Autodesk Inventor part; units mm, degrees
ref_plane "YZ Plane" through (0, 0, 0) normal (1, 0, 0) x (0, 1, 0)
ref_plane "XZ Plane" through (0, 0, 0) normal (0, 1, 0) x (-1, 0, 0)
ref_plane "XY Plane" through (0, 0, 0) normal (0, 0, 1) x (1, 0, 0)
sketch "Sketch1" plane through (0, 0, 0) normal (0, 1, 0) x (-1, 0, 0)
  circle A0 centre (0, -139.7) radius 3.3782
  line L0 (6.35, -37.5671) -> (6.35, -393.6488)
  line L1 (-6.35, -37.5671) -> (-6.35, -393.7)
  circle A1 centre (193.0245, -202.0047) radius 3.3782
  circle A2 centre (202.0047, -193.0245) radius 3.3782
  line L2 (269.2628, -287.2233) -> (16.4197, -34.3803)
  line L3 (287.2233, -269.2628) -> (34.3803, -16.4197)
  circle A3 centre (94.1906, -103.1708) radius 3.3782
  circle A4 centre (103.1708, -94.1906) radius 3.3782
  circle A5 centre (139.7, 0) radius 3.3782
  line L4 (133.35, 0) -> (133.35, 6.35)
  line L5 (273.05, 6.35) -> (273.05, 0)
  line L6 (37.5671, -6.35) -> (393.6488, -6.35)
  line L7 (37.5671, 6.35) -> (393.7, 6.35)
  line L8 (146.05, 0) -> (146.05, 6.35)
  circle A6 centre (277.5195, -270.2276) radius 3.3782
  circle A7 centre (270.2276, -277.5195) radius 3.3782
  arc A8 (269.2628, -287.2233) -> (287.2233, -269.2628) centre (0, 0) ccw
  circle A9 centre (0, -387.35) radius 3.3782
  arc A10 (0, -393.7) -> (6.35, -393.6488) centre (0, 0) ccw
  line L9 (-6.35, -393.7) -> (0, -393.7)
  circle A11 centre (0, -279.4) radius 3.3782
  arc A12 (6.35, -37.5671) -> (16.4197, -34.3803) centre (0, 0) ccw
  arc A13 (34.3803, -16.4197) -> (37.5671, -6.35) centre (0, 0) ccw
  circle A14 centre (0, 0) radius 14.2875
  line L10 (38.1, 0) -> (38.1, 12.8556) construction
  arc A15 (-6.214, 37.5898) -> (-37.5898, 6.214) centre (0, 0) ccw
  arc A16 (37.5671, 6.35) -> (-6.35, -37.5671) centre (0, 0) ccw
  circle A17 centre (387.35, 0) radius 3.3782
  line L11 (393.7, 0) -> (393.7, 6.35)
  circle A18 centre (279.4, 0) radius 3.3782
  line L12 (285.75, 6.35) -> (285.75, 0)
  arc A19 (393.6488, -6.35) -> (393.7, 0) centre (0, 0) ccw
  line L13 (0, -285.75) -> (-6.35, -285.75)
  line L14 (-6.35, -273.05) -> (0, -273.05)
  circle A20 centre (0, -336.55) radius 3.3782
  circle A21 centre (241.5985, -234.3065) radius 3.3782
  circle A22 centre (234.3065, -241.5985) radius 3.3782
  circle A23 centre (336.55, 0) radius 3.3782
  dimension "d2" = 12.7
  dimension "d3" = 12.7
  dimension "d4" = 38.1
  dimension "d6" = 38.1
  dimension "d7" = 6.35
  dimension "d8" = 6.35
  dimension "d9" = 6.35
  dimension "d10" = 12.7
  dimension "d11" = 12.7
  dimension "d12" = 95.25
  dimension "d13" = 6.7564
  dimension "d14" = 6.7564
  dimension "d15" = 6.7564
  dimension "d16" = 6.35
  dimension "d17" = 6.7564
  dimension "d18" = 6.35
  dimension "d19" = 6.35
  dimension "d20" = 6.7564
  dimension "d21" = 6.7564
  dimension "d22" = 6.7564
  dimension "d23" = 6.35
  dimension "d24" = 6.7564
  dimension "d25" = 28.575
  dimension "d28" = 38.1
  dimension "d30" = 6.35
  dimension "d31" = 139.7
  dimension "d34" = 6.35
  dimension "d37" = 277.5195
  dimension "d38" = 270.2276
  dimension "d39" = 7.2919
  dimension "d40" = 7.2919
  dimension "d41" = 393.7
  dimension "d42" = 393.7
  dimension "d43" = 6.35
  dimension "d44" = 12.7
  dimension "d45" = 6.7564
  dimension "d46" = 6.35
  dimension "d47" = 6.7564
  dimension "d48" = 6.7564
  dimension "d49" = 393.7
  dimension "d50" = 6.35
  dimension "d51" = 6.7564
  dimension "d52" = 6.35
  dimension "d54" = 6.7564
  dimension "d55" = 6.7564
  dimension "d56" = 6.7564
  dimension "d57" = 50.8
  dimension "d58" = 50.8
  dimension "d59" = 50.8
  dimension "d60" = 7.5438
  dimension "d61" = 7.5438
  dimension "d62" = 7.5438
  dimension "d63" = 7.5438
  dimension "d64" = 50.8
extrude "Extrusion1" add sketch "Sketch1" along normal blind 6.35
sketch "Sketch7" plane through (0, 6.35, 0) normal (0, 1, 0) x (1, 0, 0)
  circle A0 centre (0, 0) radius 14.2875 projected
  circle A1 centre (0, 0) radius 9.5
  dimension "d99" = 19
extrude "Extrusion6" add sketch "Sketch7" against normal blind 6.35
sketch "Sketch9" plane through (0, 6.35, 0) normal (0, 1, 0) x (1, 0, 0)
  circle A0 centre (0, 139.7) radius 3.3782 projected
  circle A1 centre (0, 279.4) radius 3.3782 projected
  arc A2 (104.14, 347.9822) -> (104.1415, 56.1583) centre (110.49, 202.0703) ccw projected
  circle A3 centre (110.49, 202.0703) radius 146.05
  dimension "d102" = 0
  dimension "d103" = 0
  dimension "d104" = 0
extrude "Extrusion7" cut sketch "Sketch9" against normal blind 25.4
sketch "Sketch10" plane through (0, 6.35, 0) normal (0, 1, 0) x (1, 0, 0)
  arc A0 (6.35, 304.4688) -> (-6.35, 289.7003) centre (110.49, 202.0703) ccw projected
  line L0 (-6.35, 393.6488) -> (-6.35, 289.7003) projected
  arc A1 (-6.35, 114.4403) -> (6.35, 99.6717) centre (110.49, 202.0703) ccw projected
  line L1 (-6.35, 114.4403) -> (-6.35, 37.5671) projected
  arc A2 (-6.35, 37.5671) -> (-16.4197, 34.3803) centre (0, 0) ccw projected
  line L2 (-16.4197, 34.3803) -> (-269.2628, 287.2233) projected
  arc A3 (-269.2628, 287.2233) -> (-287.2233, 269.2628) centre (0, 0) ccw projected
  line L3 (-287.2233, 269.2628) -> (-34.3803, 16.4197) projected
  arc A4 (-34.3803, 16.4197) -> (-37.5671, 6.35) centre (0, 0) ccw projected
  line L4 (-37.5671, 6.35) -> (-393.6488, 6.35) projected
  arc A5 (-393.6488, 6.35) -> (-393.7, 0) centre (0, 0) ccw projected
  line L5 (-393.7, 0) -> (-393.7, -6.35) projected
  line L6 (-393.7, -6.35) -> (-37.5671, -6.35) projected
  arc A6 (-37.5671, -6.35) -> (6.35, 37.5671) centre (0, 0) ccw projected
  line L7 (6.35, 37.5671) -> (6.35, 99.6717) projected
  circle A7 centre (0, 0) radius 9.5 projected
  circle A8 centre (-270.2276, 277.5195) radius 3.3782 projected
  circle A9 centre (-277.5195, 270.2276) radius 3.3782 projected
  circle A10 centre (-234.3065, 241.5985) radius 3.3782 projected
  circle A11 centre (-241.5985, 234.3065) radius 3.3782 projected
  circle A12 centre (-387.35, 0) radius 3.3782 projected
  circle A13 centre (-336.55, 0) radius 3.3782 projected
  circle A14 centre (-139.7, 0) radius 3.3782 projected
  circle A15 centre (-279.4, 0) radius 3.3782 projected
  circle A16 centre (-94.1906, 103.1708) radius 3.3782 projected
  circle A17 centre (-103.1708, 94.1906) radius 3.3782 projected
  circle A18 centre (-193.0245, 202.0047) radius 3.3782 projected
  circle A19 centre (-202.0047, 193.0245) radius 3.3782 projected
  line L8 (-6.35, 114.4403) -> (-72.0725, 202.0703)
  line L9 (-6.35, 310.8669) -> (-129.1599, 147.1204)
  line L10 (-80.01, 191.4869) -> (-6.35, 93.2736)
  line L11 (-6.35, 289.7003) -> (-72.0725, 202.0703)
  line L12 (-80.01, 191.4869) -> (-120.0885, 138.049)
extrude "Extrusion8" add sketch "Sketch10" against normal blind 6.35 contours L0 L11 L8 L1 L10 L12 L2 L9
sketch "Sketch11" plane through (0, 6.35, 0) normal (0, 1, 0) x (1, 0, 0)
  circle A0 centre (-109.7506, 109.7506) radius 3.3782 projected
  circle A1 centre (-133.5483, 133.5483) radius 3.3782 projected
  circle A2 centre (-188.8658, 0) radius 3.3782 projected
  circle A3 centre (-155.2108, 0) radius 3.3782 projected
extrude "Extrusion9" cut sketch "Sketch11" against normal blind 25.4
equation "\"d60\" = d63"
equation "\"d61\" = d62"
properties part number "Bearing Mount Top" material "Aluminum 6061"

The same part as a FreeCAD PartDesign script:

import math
import FreeCAD as App
import Part
import Sketcher
Q = App.Units.Quantity

doc = App.newDocument("Part")
body = doc.addObject("PartDesign::Body", "Body")
body.AllowCompound = True

sketch1 = doc.addObject("Sketcher::SketchObject", "Sketch")
body.addObject(sketch1)
sketch1.AttachmentSupport = (doc.XZ_Plane, [""])
sketch1.MapMode = "FlatFace"
sketch1.addGeometry(Part.LineSegment(App.Vector(-6.35, -393.6488, 0), App.Vector(-6.35, -37.5671, 0)), False)
sketch1.addGeometry(Part.ArcOfCircle(Part.Circle(App.Vector(0.000332, 0.001374, 0), App.Vector(0, 0, 1), 38.101403), math.radians(-115.528251), math.radians(-99.594218)), False)
sketch1.addGeometry(Part.LineSegment(App.Vector(-16.4197, -34.3803, 0), App.Vector(-269.2628, -287.2233, 0)), False)
sketch1.addGeometry(Part.ArcOfCircle(Part.Circle(App.Vector(0, 0, 0), App.Vector(0, 0, 1), 393.699987), math.radians(-136.84857), math.radians(-133.15143)), False)
sketch1.addGeometry(Part.LineSegment(App.Vector(-287.2233, -269.2628, 0), App.Vector(-34.3803, -16.4197, 0)), False)
sketch1.addGeometry(Part.ArcOfCircle(Part.Circle(App.Vector(-0.001314, -0.000519, 0), App.Vector(0, 0, 1), 38.098611), math.radians(-170.40637), math.radians(-154.471161)), False)
sketch1.addGeometry(Part.LineSegment(App.Vector(-37.5671, -6.35, 0), App.Vector(-393.6488, -6.35, 0)), False)
sketch1.addGeometry(Part.ArcOfCircle(Part.Circle(App.Vector(-0.19986, -0.002418, 0), App.Vector(0, 0, 1), 393.50014), math.radians(179.999648), math.radians(180.924283)), False)
sketch1.addGeometry(Part.LineSegment(App.Vector(-393.7, 0, 0), App.Vector(-393.7, 6.35, 0)), False)
sketch1.addGeometry(Part.LineSegment(App.Vector(-393.7, 6.35, 0), App.Vector(-37.5671, 6.35, 0)), False)
sketch1.addGeometry(Part.ArcOfCircle(Part.Circle(App.Vector(0, 0, 0), App.Vector(0, 0, 1), 38.099993), math.radians(-80.40593), math.radians(170.40593)), False)
sketch1.addGeometry(Part.LineSegment(App.Vector(6.35, -37.5671, 0), App.Vector(6.35, -393.7, 0)), False)
sketch1.addGeometry(Part.LineSegment(App.Vector(6.35, -393.7, 0), App.Vector(0, -393.7, 0)), False)
sketch1.addGeometry(Part.ArcOfCircle(Part.Circle(App.Vector(0.000807, 0.200076, 0), App.Vector(0, 0, 1), 393.900076), math.radians(-90.923813), math.radians(-90.000117)), False)
sketch1.addGeometry(Part.Circle(App.Vector(0, -387.35, 0), App.Vector(0, 0, 1), 3.3782), False)
sketch1.addGeometry(Part.Circle(App.Vector(0, -336.55, 0), App.Vector(0, 0, 1), 3.3782), False)
sketch1.addGeometry(Part.Circle(App.Vector(0, -279.4, 0), App.Vector(0, 0, 1), 3.3782), False)
sketch1.addGeometry(Part.Circle(App.Vector(-270.2276, -277.5195, 0), App.Vector(0, 0, 1), 3.3782), False)
sketch1.addGeometry(Part.Circle(App.Vector(-277.5195, -270.2276, 0), App.Vector(0, 0, 1), 3.3782), False)
sketch1.addGeometry(Part.Circle(App.Vector(-234.3065, -241.5985, 0), App.Vector(0, 0, 1), 3.3782), False)
sketch1.addGeometry(Part.Circle(App.Vector(-241.5985, -234.3065, 0), App.Vector(0, 0, 1), 3.3782), False)
sketch1.addGeometry(Part.Circle(App.Vector(-193.0245, -202.0047, 0), App.Vector(0, 0, 1), 3.3782), False)
sketch1.addGeometry(Part.Circle(App.Vector(-202.0047, -193.0245, 0), App.Vector(0, 0, 1), 3.3782), False)
sketch1.addGeometry(Part.Circle(App.Vector(0, -139.7, 0), App.Vector(0, 0, 1), 3.3782), False)
sketch1.addGeometry(Part.Circle(App.Vector(-94.1906, -103.1708, 0), App.Vector(0, 0, 1), 3.3782), False)
sketch1.addGeometry(Part.Circle(App.Vector(-103.1708, -94.1906, 0), App.Vector(0, 0, 1), 3.3782), False)
sketch1.addGeometry(Part.Circle(App.Vector(0, 0, 0), App.Vector(0, 0, 1), 14.2875), False)
sketch1.addGeometry(Part.Circle(App.Vector(-139.7, 0, 0), App.Vector(0, 0, 1), 3.3782), False)
sketch1.addGeometry(Part.Circle(App.Vector(-279.4, 0, 0), App.Vector(0, 0, 1), 3.3782), False)
sketch1.addGeometry(Part.Circle(App.Vector(-336.55, 0, 0), App.Vector(0, 0, 1), 3.3782), False)
sketch1.addGeometry(Part.Circle(App.Vector(-387.35, 0, 0), App.Vector(0, 0, 1), 3.3782), False)
sketch1.addConstraint(Sketcher.Constraint("Coincident", 0, 2, 1, 2))
sketch1.addConstraint(Sketcher.Constraint("Coincident", 1, 1, 2, 1))
sketch1.addConstraint(Sketcher.Constraint("Coincident", 2, 2, 3, 2))
sketch1.addConstraint(Sketcher.Constraint("Coincident", 3, 1, 4, 1))
sketch1.addConstraint(Sketcher.Constraint("Coincident", 4, 2, 5, 2))
sketch1.addConstraint(Sketcher.Constraint("Coincident", 5, 1, 6, 1))
sketch1.addConstraint(Sketcher.Constraint("Coincident", 6, 2, 7, 2))
sketch1.addConstraint(Sketcher.Constraint("Coincident", 7, 1, 8, 1))
sketch1.addConstraint(Sketcher.Constraint("Coincident", 8, 2, 9, 1))
sketch1.addConstraint(Sketcher.Constraint("Coincident", 9, 2, 10, 2))
sketch1.addConstraint(Sketcher.Constraint("Coincident", 10, 1, 11, 1))
sketch1.addConstraint(Sketcher.Constraint("Coincident", 11, 2, 12, 1))
sketch1.addConstraint(Sketcher.Constraint("Coincident", 12, 2, 13, 2))
sketch1.addConstraint(Sketcher.Constraint("Coincident", 13, 1, 0, 1))
sketch1.addConstraint(Sketcher.Constraint("Vertical", 0))
sketch1.addConstraint(Sketcher.Constraint("Horizontal", 6))
sketch1.addConstraint(Sketcher.Constraint("Vertical", 8))
sketch1.addConstraint(Sketcher.Constraint("Horizontal", 9))
sketch1.addConstraint(Sketcher.Constraint("Vertical", 11))
sketch1.addConstraint(Sketcher.Constraint("Horizontal", 12))
sketch1.addConstraint(Sketcher.Constraint("Coincident", 3, 3, -1, 1))
sketch1.addConstraint(Sketcher.Constraint("Coincident", 10, 3, -1, 1))
sketch1.addConstraint(Sketcher.Constraint("Coincident", 26, 3, -1, 1))
sketch1.addConstraint(Sketcher.Constraint("PointOnObject", 14, 3, -2))
sketch1.addConstraint(Sketcher.Constraint("PointOnObject", 15, 3, -2))
sketch1.addConstraint(Sketcher.Constraint("PointOnObject", 16, 3, -2))
sketch1.addConstraint(Sketcher.Constraint("PointOnObject", 23, 3, -2))
sketch1.addConstraint(Sketcher.Constraint("PointOnObject", 27, 3, -1))
sketch1.addConstraint(Sketcher.Constraint("PointOnObject", 28, 3, -1))
sketch1.addConstraint(Sketcher.Constraint("PointOnObject", 29, 3, -1))
sketch1.addConstraint(Sketcher.Constraint("PointOnObject", 30, 3, -1))
sketch1.addConstraint(Sketcher.Constraint("PointOnObject", 7, 1, -1))
sketch1.addConstraint(Sketcher.Constraint("PointOnObject", 12, 2, -2))
sketch1.addConstraint(Sketcher.Constraint("Radius", 3, Q("15.5 in")))
sketch1.addConstraint(Sketcher.Constraint("Radius", 10, Q("1.5 in")))
sketch1.addConstraint(Sketcher.Constraint("Diameter", 14, Q("0.266 in")))
sketch1.addConstraint(Sketcher.Constraint("Diameter", 15, Q("0.266 in")))
sketch1.addConstraint(Sketcher.Constraint("Diameter", 16, Q("0.266 in")))
sketch1.addConstraint(Sketcher.Constraint("Diameter", 17, Q("0.266 in")))
sketch1.addConstraint(Sketcher.Constraint("Diameter", 18, Q("0.266 in")))
sketch1.addConstraint(Sketcher.Constraint("Diameter", 19, Q("0.266 in")))
sketch1.addConstraint(Sketcher.Constraint("Diameter", 20, Q("0.266 in")))
sketch1.addConstraint(Sketcher.Constraint("Diameter", 21, Q("0.266 in")))
sketch1.addConstraint(Sketcher.Constraint("Diameter", 22, Q("0.266 in")))
sketch1.addConstraint(Sketcher.Constraint("Diameter", 23, Q("0.266 in")))
sketch1.addConstraint(Sketcher.Constraint("Diameter", 24, Q("0.266 in")))
sketch1.addConstraint(Sketcher.Constraint("Diameter", 25, Q("0.266 in")))
sketch1.addConstraint(Sketcher.Constraint("Diameter", 26, Q("1.125 in")))
sketch1.addConstraint(Sketcher.Constraint("Diameter", 27, Q("0.266 in")))
sketch1.addConstraint(Sketcher.Constraint("Diameter", 28, Q("0.266 in")))
sketch1.addConstraint(Sketcher.Constraint("Diameter", 29, Q("0.266 in")))
sketch1.addConstraint(Sketcher.Constraint("Diameter", 30, Q("0.266 in")))
sketch1.addConstraint(Sketcher.Constraint("DistanceY", 14, 3, 15, 3, Q("2 in")))
sketch1.addConstraint(Sketcher.Constraint("DistanceX", 30, 3, 29, 3, Q("2 in")))
sketch1.addConstraint(Sketcher.Constraint("DistanceX", 12, 2, 12, 1, Q("0.25 in")))
sketch1.addConstraint(Sketcher.Constraint("DistanceY", 8, 1, 8, 2, Q("0.25 in")))
sketch1.addConstraint(Sketcher.Constraint("DistanceY", 23, 3, -1, 1, Q("5.5 in")))
sketch1.addConstraint(Sketcher.Constraint("DistanceX", 27, 3, -1, 1, Q("5.5 in")))
sketch1.addConstraint(Sketcher.Constraint("DistanceX", 7, 1, -1, 1, Q("15.5 in")))
sketch1.addConstraint(Sketcher.Constraint("DistanceY", 11, 2, -1, 1, Q("15.5 in")))
sketch1.addConstraint(Sketcher.Constraint("DistanceY", 16, 3, 23, 3, Q("5.5 in")))
sketch1.addConstraint(Sketcher.Constraint("DistanceX", 28, 3, 27, 3, Q("5.5 in")))
sketch1.addConstraint(Sketcher.Constraint("DistanceY", 6, 2, 8, 2, Q("0.5 in")))
sketch1.addConstraint(Sketcher.Constraint("DistanceX", 0, 2, 10, 1, Q("0.5 in")))
sketch1.addConstraint(Sketcher.Constraint("DistanceX", 7, 1, 30, 3, Q("0.25 in")))
sketch1.addConstraint(Sketcher.Constraint("DistanceY", 11, 2, 14, 3, Q("0.25 in")))
sketch1.addConstraint(Sketcher.Constraint("DistanceX", 17, 3, -1, 1, Q("270.2276 mm")))
sketch1.addConstraint(Sketcher.Constraint("DistanceY", 17, 3, -1, 1, Q("277.5195 mm")))
sketch1.addConstraint(Sketcher.Constraint("DistanceX", 18, 3, -1, 1, Q("277.5195 mm")))
sketch1.addConstraint(Sketcher.Constraint("DistanceY", 18, 3, -1, 1, Q("270.2276 mm")))
sketch1.addConstraint(Sketcher.Constraint("Radius", 1, Q("38.1014 mm")))
sketch1.addConstraint(Sketcher.Constraint("Radius", 5, Q("38.0986 mm")))
sketch1.addConstraint(Sketcher.Constraint("Radius", 7, Q("393.5001 mm")))
sketch1.addConstraint(Sketcher.Constraint("Radius", 13, Q("393.9 mm")))
sketch1.addConstraint(Sketcher.Constraint("DistanceY", 17, 3, 5, 3, Q("277.519 mm")))
sketch1.addConstraint(Sketcher.Constraint("DistanceX", 20, 3, 19, 3, Q("7.292 mm")))
sketch1.addConstraint(Sketcher.Constraint("DistanceY", 19, 3, 20, 3, Q("7.292 mm")))
sketch1.addConstraint(Sketcher.Constraint("DistanceY", 2, 2, -1, 1, Q("11.308 in")))
sketch1.addConstraint(Sketcher.Constraint("DistanceX", 3, 1, -1, 1, Q("11.308 in")))
sketch1.addConstraint(Sketcher.Constraint("DistanceY", 0, 2, 5, 3, Q("1.479 in")))
sketch1.addConstraint(Sketcher.Constraint("DistanceX", 6, 2, 6, 1, Q("356.0817 mm")))
sketch1.addConstraint(Sketcher.Constraint("DistanceY", 0, 1, 0, 2, Q("356.0817 mm")))
sketch1.addConstraint(Sketcher.Constraint("DistanceY", 7, 3, -1, 1, Q("0.0001 in")))
sketch1.addConstraint(Sketcher.Constraint("DistanceX", 21, 3, -1, 1, Q("7.5994 in")))
sketch1.addConstraint(Sketcher.Constraint("DistanceY", 22, 3, -1, 1, Q("7.5994 in")))
sketch1.addConstraint(Sketcher.Constraint("DistanceX", 24, 3, -1, 1, Q("3.7083 in")))
sketch1.addConstraint(Sketcher.Constraint("DistanceY", 25, 3, -1, 1, Q("3.7083 in")))
sketch1.addConstraint(Sketcher.Constraint("DistanceX", 18, 3, 19, 3, Q("1.7013 in")))
sketch1.addConstraint(Sketcher.Constraint("DistanceY", 17, 3, 20, 3, Q("1.7013 in")))
sketch1.addConstraint(Sketcher.Constraint("DistanceY", 19, 3, 21, 3, Q("1.5588 in")))
sketch1.addConstraint(Sketcher.Constraint("DistanceX", 20, 3, 22, 3, Q("1.5588 in")))
sketch1.addConstraint(Sketcher.Constraint("DistanceX", 25, 3, 5, 3, Q("4.0618 in")))
sketch1.addConstraint(Sketcher.Constraint("DistanceX", 1, 1, 5, 3, Q("0.6464 in")))
sketch1.addConstraint(Sketcher.Constraint("DistanceX", 4, 2, 1, 1, Q("0.7071 in")))
sketch1.addConstraint(Sketcher.Constraint("DistanceY", 1, 1, 4, 2, Q("0.7071 in")))
sketch1.addConstraint(Sketcher.Constraint("DistanceY", 24, 3, -1, 1, Q("103.1708 mm")))
pad1 = doc.addObject("PartDesign::Pad", "Pad")
body.addObject(pad1)
pad1.Profile = sketch1
pad1.Length = Q("0.25 in")
pad1.Reversed = True

sketch2 = doc.addObject("Sketcher::SketchObject", "Sketch001")
body.addObject(sketch2)
sketch2.AttachmentSupport = (doc.XZ_Plane, [""])
sketch2.MapMode = "FlatFace"
sketch2.AttachmentOffset = App.Placement(App.Vector(0, 0, -0.25 * 25.4), App.Rotation())
sketch2.addGeometry(Part.Circle(App.Vector(0, 0, 0), App.Vector(0, 0, 1), 14), False)
sketch2.addGeometry(Part.Circle(App.Vector(0, 0, 0), App.Vector(0, 0, 1), 10), False)
sketch2.addConstraint(Sketcher.Constraint("Coincident", 0, 3, -1, 1))
sketch2.addConstraint(Sketcher.Constraint("Coincident", 1, 3, -1, 1))
sketch2.addConstraint(Sketcher.Constraint("Diameter", 1, Q("19 mm")))
sketch2.addConstraint(Sketcher.Constraint("Diameter", 0, Q("1.125 in")))
pad2 = doc.addObject("PartDesign::Pad", "Pad001")
body.addObject(pad2)
pad2.Profile = sketch2
pad2.Length = Q("0.25 in")

sketch3 = doc.addObject("Sketcher::SketchObject", "Sketch002")
body.addObject(sketch3)
sketch3.AttachmentSupport = (doc.XZ_Plane, [""])
sketch3.MapMode = "FlatFace"
sketch3.AttachmentOffset = App.Placement(App.Vector(0, 0, -0.25 * 25.4), App.Rotation())
sketch3.addGeometry(Part.ArcOfCircle(Part.Circle(App.Vector(110.5, -202.1, 0), App.Vector(0, 0, 1), 146.1), math.radians(-92), math.radians(92)), False)
sketch3.addGeometry(Part.ArcOfCircle(Part.Circle(App.Vector(110.5, -202.1, 0), App.Vector(0, 0, 1), 146.1), math.radians(92), math.radians(268)), False)
sketch3.addGeometry(Part.Circle(App.Vector(0, -139.7, 0), App.Vector(0, 0, 1), 3.4), False)
sketch3.addGeometry(Part.Circle(App.Vector(0, -279.4, 0), App.Vector(0, 0, 1), 3.4), False)
sketch3.addConstraint(Sketcher.Constraint("Tangent", 0, 1, 1, 2))
sketch3.addConstraint(Sketcher.Constraint("Coincident", 1, 1, 0, 2))
sketch3.addConstraint(Sketcher.Constraint("Equal", 2, 3))
sketch3.addConstraint(Sketcher.Constraint("PointOnObject", 2, 3, -2))
sketch3.addConstraint(Sketcher.Constraint("PointOnObject", 3, 3, -2))
sketch3.addConstraint(Sketcher.Constraint("Radius", 0, Q("5.75 in")))
sketch3.addConstraint(Sketcher.Constraint("Diameter", 2, Q("0.266 in")))
sketch3.addConstraint(Sketcher.Constraint("DistanceY", 3, 3, -1, 1, Q("11 in")))
sketch3.addConstraint(Sketcher.Constraint("DistanceY", 2, 3, -1, 1, Q("5.5 in")))
sketch3.addConstraint(Sketcher.Constraint("DistanceX", -1, 1, 0, 1, Q("4.1 in")))
sketch3.addConstraint(Sketcher.Constraint("DistanceX", -1, 1, 0, 3, Q("4.35 in")))
sketch3.addConstraint(Sketcher.Constraint("DistanceY", 0, 3, -1, 1, Q("202.0703 mm")))
sketch3.addConstraint(Sketcher.Constraint("DistanceX", -1, 1, 1, 1, Q("104.1415 mm")))
pocket1 = doc.addObject("PartDesign::Pocket", "Pocket")
body.addObject(pocket1)
pocket1.Profile = sketch3
pocket1.Length = Q("1 in")
pocket1.Reversed = True

sketch4 = doc.addObject("Sketcher::SketchObject", "Sketch003")
body.addObject(sketch4)
sketch4.AttachmentSupport = (doc.XZ_Plane, [""])
sketch4.MapMode = "FlatFace"
sketch4.AttachmentOffset = App.Placement(App.Vector(0, 0, -0.25 * 25.4), App.Rotation())
sketch4.addGeometry(Part.LineSegment(App.Vector(-6, -290, 0), App.Vector(-6, -311, 0)), False)
sketch4.addGeometry(Part.LineSegment(App.Vector(-6, -311, 0), App.Vector(-129, -147, 0)), False)
sketch4.addGeometry(Part.LineSegment(App.Vector(-129, -147, 0), App.Vector(-120, -138, 0)), False)
sketch4.addGeometry(Part.LineSegment(App.Vector(-120, -138, 0), App.Vector(-80, -191, 0)), False)
sketch4.addGeometry(Part.LineSegment(App.Vector(-80, -191, 0), App.Vector(-6, -93, 0)), False)
sketch4.addGeometry(Part.LineSegment(App.Vector(-6, -93, 0), App.Vector(-6, -114, 0)), False)
sketch4.addGeometry(Part.LineSegment(App.Vector(-6, -114, 0), App.Vector(-72, -202, 0)), False)
sketch4.addGeometry(Part.LineSegment(App.Vector(-72, -202, 0), App.Vector(-6, -290, 0)), False)
sketch4.addConstraint(Sketcher.Constraint("Coincident", 0, 2, 1, 1))
sketch4.addConstraint(Sketcher.Constraint("Coincident", 1, 2, 2, 1))
sketch4.addConstraint(Sketcher.Constraint("Coincident", 2, 2, 3, 1))
sketch4.addConstraint(Sketcher.Constraint("Coincident", 3, 2, 4, 1))
sketch4.addConstraint(Sketcher.Constraint("Coincident", 4, 2, 5, 1))
sketch4.addConstraint(Sketcher.Constraint("Coincident", 5, 2, 6, 1))
sketch4.addConstraint(Sketcher.Constraint("Coincident", 6, 2, 7, 1))
sketch4.addConstraint(Sketcher.Constraint("Coincident", 7, 2, 0, 1))
sketch4.addConstraint(Sketcher.Constraint("Vertical", 0))
sketch4.addConstraint(Sketcher.Constraint("Vertical", 5))
sketch4.addConstraint(Sketcher.Constraint("Parallel", 1, 3))
sketch4.addConstraint(Sketcher.Constraint("Parallel", 4, 6))
sketch4.addConstraint(Sketcher.Constraint("Parallel", 3, 7))
sketch4.addConstraint(Sketcher.Constraint("Vertical", 0, 2, 4, 2))
sketch4.addConstraint(Sketcher.Constraint("Equal", 0, 5))
sketch4.addConstraint(Sketcher.Constraint("Equal", 6, 7))
sketch4.addConstraint(Sketcher.Constraint("Angle", 2, Q("45 deg")))
sketch4.addConstraint(Sketcher.Constraint("DistanceX", 3, 2, 0, 2, Q("2.9 in")))
sketch4.addConstraint(Sketcher.Constraint("DistanceY", 0, 2, 3, 2, Q("4.7 in")))
sketch4.addConstraint(Sketcher.Constraint("DistanceY", 7, 2, 5, 2, Q("6.9 in")))
sketch4.addConstraint(Sketcher.Constraint("DistanceX", 0, 2, -1, 1, Q("0.25 in")))
sketch4.addConstraint(Sketcher.Constraint("Angle", 1, Q("126.87 deg")))
sketch4.addConstraint(Sketcher.Constraint("DistanceY", 2, 2, -1, 1, Q("5.435 in")))
sketch4.addConstraint(Sketcher.Constraint("Distance", 1, Q("8.0584 in")))
pad3 = doc.addObject("PartDesign::Pad", "Pad002")
body.addObject(pad3)
pad3.Profile = sketch4
pad3.Length = Q("0.25 in")

sketch5 = doc.addObject("Sketcher::SketchObject", "Sketch004")
body.addObject(sketch5)
sketch5.AttachmentSupport = (doc.XZ_Plane, [""])
sketch5.MapMode = "FlatFace"
sketch5.AttachmentOffset = App.Placement(App.Vector(0, 0, -0.25 * 25.4), App.Rotation())
sketch5.addGeometry(Part.Circle(App.Vector(-109.8, -109.8, 0), App.Vector(0, 0, 1), 3.4), False)
sketch5.addGeometry(Part.Circle(App.Vector(-133.5, -133.5, 0), App.Vector(0, 0, 1), 3.4), False)
sketch5.addGeometry(Part.Circle(App.Vector(-188.9, 0, 0), App.Vector(0, 0, 1), 3.4), False)
sketch5.addGeometry(Part.Circle(App.Vector(-155.2, 0, 0), App.Vector(0, 0, 1), 3.4), False)
sketch5.addConstraint(Sketcher.Constraint("Equal", 0, 1))
sketch5.addConstraint(Sketcher.Constraint("Equal", 1, 2))
sketch5.addConstraint(Sketcher.Constraint("Equal", 2, 3))
sketch5.addConstraint(Sketcher.Constraint("PointOnObject", 2, 3, -1))
sketch5.addConstraint(Sketcher.Constraint("PointOnObject", 3, 3, -1))
sketch5.addConstraint(Sketcher.Constraint("Diameter", 0, Q("0.266 in")))
sketch5.addConstraint(Sketcher.Constraint("DistanceX", 2, 3, 3, 3, Q("1.325 in")))
sketch5.addConstraint(Sketcher.Constraint("DistanceX", 0, 3, -1, 1, Q("4.3209 in")))
sketch5.addConstraint(Sketcher.Constraint("DistanceY", 0, 3, -1, 1, Q("4.3209 in")))
sketch5.addConstraint(Sketcher.Constraint("DistanceX", 1, 3, -1, 1, Q("5.2578 in")))
sketch5.addConstraint(Sketcher.Constraint("DistanceY", 1, 3, -1, 1, Q("5.2578 in")))
sketch5.addConstraint(Sketcher.Constraint("DistanceX", 2, 3, -1, 1, Q("188.8658 mm")))
pocket2 = doc.addObject("PartDesign::Pocket", "Pocket001")
body.addObject(pocket2)
pocket2.Profile = sketch5
pocket2.Length = Q("1 in")
pocket2.Reversed = True

doc.recompute()
